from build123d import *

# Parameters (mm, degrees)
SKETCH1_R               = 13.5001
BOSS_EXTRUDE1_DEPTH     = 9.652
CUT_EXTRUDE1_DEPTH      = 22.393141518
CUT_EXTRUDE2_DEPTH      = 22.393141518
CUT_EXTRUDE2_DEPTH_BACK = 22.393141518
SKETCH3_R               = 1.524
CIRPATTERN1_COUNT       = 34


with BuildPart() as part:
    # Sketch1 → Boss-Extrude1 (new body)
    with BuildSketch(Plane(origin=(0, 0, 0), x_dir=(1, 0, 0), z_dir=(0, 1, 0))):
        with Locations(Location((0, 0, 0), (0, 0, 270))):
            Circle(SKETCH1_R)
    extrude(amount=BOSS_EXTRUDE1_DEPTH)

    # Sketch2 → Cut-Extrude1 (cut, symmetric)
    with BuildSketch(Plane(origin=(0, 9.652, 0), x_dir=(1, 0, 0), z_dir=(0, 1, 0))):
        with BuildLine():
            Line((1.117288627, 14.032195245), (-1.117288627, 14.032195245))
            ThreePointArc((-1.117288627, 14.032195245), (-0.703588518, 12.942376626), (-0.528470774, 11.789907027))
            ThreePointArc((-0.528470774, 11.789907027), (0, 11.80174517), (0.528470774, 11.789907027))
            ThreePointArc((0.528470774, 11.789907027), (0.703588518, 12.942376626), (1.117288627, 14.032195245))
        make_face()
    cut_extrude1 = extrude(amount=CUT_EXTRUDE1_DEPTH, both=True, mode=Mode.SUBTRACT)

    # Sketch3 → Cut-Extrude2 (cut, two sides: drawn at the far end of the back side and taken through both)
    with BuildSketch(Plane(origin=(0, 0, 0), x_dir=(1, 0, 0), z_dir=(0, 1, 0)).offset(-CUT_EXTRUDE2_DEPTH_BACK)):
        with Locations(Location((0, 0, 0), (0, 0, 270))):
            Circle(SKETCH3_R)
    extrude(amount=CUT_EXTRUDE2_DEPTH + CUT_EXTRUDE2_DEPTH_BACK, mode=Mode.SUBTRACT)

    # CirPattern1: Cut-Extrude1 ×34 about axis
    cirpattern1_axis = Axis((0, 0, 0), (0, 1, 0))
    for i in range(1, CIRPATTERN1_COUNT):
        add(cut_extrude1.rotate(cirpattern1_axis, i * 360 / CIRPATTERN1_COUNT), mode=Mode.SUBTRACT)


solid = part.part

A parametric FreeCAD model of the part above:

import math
import FreeCAD as App
import Part
import Sketcher
from FreeCAD import Vector
Q = App.Units.Quantity

doc = App.newDocument("Part")
params = doc.addObject("Spreadsheet::Sheet", "Params")
for row, (alias, value) in enumerate([
    ("sketch1_diameter", "1.063 in"),
    ("pad1_length", "0.38 in"),
    ("pocket1_length", "44.786283 mm"),
    ("sketch3_diameter", "0.12 in"),
], start=1):
    params.set(f"A{row}", alias)
    params.set(f"B{row}", "=" + value)
    params.setAlias(f"B{row}", alias)

body = doc.addObject("PartDesign::Body", "Body")

# Sketch on XZ plane
sketch1 = doc.addObject("Sketcher::SketchObject", "Sketch")
body.addObject(sketch1)
sketch1.AttachmentSupport = (doc.XZ_Plane, [""])
sketch1.MapMode = "FlatFace"
sketch1.addGeometry(Part.Circle(Vector(0, 0, 0), Vector(0, 0, 1), 14), False)
sketch1.addConstraint([
    Sketcher.Constraint("Coincident", 0, 3, -1, 1),
    Sketcher.Constraint("Diameter", 0, Q("1.063 in")),
])
sketch1.setExpression("Constraints[1]", "Params.sketch1_diameter")
pad1 = doc.addObject("PartDesign::Pad", "Pad")
body.addObject(pad1)
pad1.Profile = sketch1
pad1.setExpression("Length", "Params.pad1_length")
pad1.Reversed = True

# Sketch on XZ plane
sketch2 = doc.addObject("Sketcher::SketchObject", "Sketch001")
body.addObject(sketch2)
sketch2.AttachmentSupport = (doc.XZ_Plane, [""])
sketch2.MapMode = "FlatFace"
sketch2.AttachmentOffset = App.Placement(Vector(0, 0, -0.38 * 25.4), App.Rotation())
sketch2.addGeometry([
    Part.LineSegment(Vector(1.1, -14, 0), Vector(-1.1, -14, 0)),
    Part.ArcOfCircle(Part.Circle(Vector(-6, -11.5, 0), Vector(0, 0, 1), 5.5), math.radians(-27), math.radians(-3)),
    Part.ArcOfCircle(Part.Circle(Vector(0, 0, 0), Vector(0, 0, 1), 11.8), math.radians(-92.57), math.radians(-87.43)),
    Part.ArcOfCircle(Part.Circle(Vector(6, -11.5, 0), Vector(0, 0, 1), 5.5), math.radians(-177), math.radians(-153)),
], False)
sketch2.addConstraint([
    Sketcher.Constraint("Coincident", 0, 2, 1, 1),
    Sketcher.Constraint("Coincident", 1, 2, 2, 1),
    Sketcher.Constraint("Coincident", 2, 2, 3, 1),
    Sketcher.Constraint("Coincident", 3, 2, 0, 1),
    Sketcher.Constraint("Horizontal", 0),
    Sketcher.Constraint("Coincident", 2, 3, -1, 1),
    Sketcher.Constraint("Equal", 1, 3),
    Sketcher.Constraint("Symmetric", 1, 3, 3, 3, -2),
    Sketcher.Constraint("Radius", 1, 5.508759),
    Sketcher.Constraint("Radius", 2, 11.801745),
    Sketcher.Constraint("DistanceX", 0, 2, 0, 1, 2.234577),
    Sketcher.Constraint("DistanceY", 1, 3, -1, 1, 11.54323),
    Sketcher.Constraint("DistanceX", 1, 2, -1, 1, 0.528471),
])
pocket1 = doc.addObject("PartDesign::Pocket", "Pocket")
body.addObject(pocket1)
pocket1.Profile = sketch2
pocket1.setExpression("Length", "Params.pocket1_length")
pocket1.Midplane = True

# Sketch on XZ plane
sketch3 = doc.addObject("Sketcher::SketchObject", "Sketch002")
body.addObject(sketch3)
sketch3.AttachmentSupport = (doc.XZ_Plane, [""])
sketch3.MapMode = "FlatFace"
sketch3.addGeometry(Part.Circle(Vector(0, 0, 0), Vector(0, 0, 1), 1.5), False)
sketch3.addConstraint([
    Sketcher.Constraint("Coincident", 0, 3, -1, 1),
    Sketcher.Constraint("Diameter", 0, Q("0.12 in")),
])
sketch3.setExpression("Constraints[1]", "Params.sketch3_diameter")
pocket2 = doc.addObject("PartDesign::Pocket", "Pocket001")
body.addObject(pocket2)
pocket2.Profile = sketch3
pocket2.Type = "ThroughAll"
pocket2.Midplane = True
doc.recompute()

polarpattern = doc.addObject("PartDesign::PolarPattern", "PolarPattern")
body.addObject(polarpattern)
polarpattern.Originals = [pocket1]
polarpattern.Axis = (doc.Y_Axis, [""])
polarpattern.Angle = 360
polarpattern.Occurrences = 34
body.Tip = polarpattern

doc.recompute()
